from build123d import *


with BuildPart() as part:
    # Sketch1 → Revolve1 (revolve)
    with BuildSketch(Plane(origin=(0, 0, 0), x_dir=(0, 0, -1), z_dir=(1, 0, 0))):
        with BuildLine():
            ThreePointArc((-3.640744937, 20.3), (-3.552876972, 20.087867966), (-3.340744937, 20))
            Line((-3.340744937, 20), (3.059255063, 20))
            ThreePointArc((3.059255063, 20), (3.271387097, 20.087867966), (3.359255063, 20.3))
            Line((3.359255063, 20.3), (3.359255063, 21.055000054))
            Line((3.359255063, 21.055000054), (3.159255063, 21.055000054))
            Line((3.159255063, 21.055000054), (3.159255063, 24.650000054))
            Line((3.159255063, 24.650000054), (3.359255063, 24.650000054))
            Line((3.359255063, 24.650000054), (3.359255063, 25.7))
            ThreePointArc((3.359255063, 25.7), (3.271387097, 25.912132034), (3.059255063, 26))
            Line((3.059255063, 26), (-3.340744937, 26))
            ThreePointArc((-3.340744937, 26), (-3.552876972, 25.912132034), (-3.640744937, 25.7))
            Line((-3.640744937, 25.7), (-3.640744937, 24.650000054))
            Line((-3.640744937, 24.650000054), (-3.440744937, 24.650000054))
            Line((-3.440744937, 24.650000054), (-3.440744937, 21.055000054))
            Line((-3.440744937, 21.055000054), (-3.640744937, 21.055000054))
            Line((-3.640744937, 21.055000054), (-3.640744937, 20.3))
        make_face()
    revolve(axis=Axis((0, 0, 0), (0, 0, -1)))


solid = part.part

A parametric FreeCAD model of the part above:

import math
import FreeCAD as App
import Part
import Sketcher

V = App.Vector

doc = App.newDocument("Part")
body = doc.addObject("PartDesign::Body", "Body")

sketch1 = body.newObject("Sketcher::SketchObject", "Sketch")
sketch1.AttachmentSupport = (doc.getObject("YZ_Plane"), [""])
sketch1.MapMode = "FlatFace"
sketch1.addGeometry([
    Part.ArcOfCircle(Part.Circle(V(20.3, 3.34, 0), V(0, 0, 1), 0.3), math.radians(90), math.radians(180)),
    Part.LineSegment(V(20, 3.34, 0), V(20, -3.06, 0)),
    Part.ArcOfCircle(Part.Circle(V(20.3, -3.06, 0), V(0, 0, 1), 0.3), math.radians(-180), math.radians(-90)),
    Part.LineSegment(V(20.3, -3.36, 0), V(21.06, -3.36, 0)),
    Part.LineSegment(V(21.06, -3.36, 0), V(21.06, -3.16, 0)),
    Part.LineSegment(V(21.06, -3.16, 0), V(24.65, -3.16, 0)),
    Part.LineSegment(V(24.65, -3.16, 0), V(24.65, -3.36, 0)),
    Part.LineSegment(V(24.65, -3.36, 0), V(25.7, -3.36, 0)),
    Part.ArcOfCircle(Part.Circle(V(25.7, -3.06, 0), V(0, 0, 1), 0.3), math.radians(-90), math.radians(0)),
    Part.LineSegment(V(26, -3.06, 0), V(26, 3.34, 0)),
    Part.ArcOfCircle(Part.Circle(V(25.7, 3.34, 0), V(0, 0, 1), 0.3), math.radians(0), math.radians(90)),
    Part.LineSegment(V(25.7, 3.64, 0), V(24.65, 3.64, 0)),
    Part.LineSegment(V(24.65, 3.64, 0), V(24.65, 3.44, 0)),
    Part.LineSegment(V(24.65, 3.44, 0), V(21.06, 3.44, 0)),
    Part.LineSegment(V(21.06, 3.44, 0), V(21.06, 3.64, 0)),
    Part.LineSegment(V(21.06, 3.64, 0), V(20.3, 3.64, 0)),
], False)
sketch1.addConstraint([
    Sketcher.Constraint("Tangent", 0, 2, 1, 1),
    Sketcher.Constraint("Tangent", 1, 2, 2, 1),
    Sketcher.Constraint("Tangent", 2, 2, 3, 1),
    Sketcher.Constraint("Coincident", 3, 2, 4, 1),
    Sketcher.Constraint("Coincident", 4, 2, 5, 1),
    Sketcher.Constraint("Coincident", 5, 2, 6, 1),
    Sketcher.Constraint("Coincident", 6, 2, 7, 1),
    Sketcher.Constraint("Tangent", 7, 2, 8, 1),
    Sketcher.Constraint("Tangent", 8, 2, 9, 1),
    Sketcher.Constraint("Tangent", 9, 2, 10, 1),
    Sketcher.Constraint("Tangent", 10, 2, 11, 1),
    Sketcher.Constraint("Coincident", 11, 2, 12, 1),
    Sketcher.Constraint("Coincident", 12, 2, 13, 1),
    Sketcher.Constraint("Coincident", 13, 2, 14, 1),
    Sketcher.Constraint("Coincident", 14, 2, 15, 1),
    Sketcher.Constraint("Tangent", 15, 2, 0, 1),
    Sketcher.Constraint("Vertical", 1),
    Sketcher.Constraint("Horizontal", 3),
    Sketcher.Constraint("Vertical", 4),
    Sketcher.Constraint("Horizontal", 5),
    Sketcher.Constraint("Vertical", 6),
    Sketcher.Constraint("Horizontal", 7),
    Sketcher.Constraint("Vertical", 9),
    Sketcher.Constraint("Horizontal", 11),
    Sketcher.Constraint("Vertical", 12),
    Sketcher.Constraint("Horizontal", 13),
    Sketcher.Constraint("Vertical", 14),
    Sketcher.Constraint("Horizontal", 15),
    Sketcher.Constraint("Equal", 0, 2),
    Sketcher.Constraint("Equal", 2, 8),
    Sketcher.Constraint("Equal", 8, 10),
    Sketcher.Constraint("Horizontal", 2, 3, 8, 3),
    Sketcher.Constraint("Horizontal", 0, 3, 10, 3),
    Sketcher.Constraint("Vertical", 6, 2, 11, 2),
    Sketcher.Constraint("Vertical", 4, 2, 13, 2),
    Sketcher.Constraint("Equal", 6, 12),
    Sketcher.Constraint("Radius", 0, 0.3),
    Sketcher.Constraint("DistanceY", 1, 2, 1, 1, 6.4),
    Sketcher.Constraint("DistanceY", 4, 1, 4, 2, 0.2),
    Sketcher.Constraint("DistanceX", -1, 1, 0, 2, 20.0),
    Sketcher.Constraint("DistanceX", -1, 1, 8, 2, 26.0),
    Sketcher.Constraint("DistanceX", 7, 1, 7, 2, 1.05),
    Sketcher.Constraint("DistanceX", 3, 1, 3, 2, 0.755),
    Sketcher.Constraint("DistanceY", -1, 1, 0, 3, 3.340745),
])
revolution = body.newObject("PartDesign::Revolution", "Revolution")
revolution.Profile = sketch1
revolution.ReferenceAxis = (sketch1, ["V_Axis"])
revolution.Angle = 360

doc.recompute()
